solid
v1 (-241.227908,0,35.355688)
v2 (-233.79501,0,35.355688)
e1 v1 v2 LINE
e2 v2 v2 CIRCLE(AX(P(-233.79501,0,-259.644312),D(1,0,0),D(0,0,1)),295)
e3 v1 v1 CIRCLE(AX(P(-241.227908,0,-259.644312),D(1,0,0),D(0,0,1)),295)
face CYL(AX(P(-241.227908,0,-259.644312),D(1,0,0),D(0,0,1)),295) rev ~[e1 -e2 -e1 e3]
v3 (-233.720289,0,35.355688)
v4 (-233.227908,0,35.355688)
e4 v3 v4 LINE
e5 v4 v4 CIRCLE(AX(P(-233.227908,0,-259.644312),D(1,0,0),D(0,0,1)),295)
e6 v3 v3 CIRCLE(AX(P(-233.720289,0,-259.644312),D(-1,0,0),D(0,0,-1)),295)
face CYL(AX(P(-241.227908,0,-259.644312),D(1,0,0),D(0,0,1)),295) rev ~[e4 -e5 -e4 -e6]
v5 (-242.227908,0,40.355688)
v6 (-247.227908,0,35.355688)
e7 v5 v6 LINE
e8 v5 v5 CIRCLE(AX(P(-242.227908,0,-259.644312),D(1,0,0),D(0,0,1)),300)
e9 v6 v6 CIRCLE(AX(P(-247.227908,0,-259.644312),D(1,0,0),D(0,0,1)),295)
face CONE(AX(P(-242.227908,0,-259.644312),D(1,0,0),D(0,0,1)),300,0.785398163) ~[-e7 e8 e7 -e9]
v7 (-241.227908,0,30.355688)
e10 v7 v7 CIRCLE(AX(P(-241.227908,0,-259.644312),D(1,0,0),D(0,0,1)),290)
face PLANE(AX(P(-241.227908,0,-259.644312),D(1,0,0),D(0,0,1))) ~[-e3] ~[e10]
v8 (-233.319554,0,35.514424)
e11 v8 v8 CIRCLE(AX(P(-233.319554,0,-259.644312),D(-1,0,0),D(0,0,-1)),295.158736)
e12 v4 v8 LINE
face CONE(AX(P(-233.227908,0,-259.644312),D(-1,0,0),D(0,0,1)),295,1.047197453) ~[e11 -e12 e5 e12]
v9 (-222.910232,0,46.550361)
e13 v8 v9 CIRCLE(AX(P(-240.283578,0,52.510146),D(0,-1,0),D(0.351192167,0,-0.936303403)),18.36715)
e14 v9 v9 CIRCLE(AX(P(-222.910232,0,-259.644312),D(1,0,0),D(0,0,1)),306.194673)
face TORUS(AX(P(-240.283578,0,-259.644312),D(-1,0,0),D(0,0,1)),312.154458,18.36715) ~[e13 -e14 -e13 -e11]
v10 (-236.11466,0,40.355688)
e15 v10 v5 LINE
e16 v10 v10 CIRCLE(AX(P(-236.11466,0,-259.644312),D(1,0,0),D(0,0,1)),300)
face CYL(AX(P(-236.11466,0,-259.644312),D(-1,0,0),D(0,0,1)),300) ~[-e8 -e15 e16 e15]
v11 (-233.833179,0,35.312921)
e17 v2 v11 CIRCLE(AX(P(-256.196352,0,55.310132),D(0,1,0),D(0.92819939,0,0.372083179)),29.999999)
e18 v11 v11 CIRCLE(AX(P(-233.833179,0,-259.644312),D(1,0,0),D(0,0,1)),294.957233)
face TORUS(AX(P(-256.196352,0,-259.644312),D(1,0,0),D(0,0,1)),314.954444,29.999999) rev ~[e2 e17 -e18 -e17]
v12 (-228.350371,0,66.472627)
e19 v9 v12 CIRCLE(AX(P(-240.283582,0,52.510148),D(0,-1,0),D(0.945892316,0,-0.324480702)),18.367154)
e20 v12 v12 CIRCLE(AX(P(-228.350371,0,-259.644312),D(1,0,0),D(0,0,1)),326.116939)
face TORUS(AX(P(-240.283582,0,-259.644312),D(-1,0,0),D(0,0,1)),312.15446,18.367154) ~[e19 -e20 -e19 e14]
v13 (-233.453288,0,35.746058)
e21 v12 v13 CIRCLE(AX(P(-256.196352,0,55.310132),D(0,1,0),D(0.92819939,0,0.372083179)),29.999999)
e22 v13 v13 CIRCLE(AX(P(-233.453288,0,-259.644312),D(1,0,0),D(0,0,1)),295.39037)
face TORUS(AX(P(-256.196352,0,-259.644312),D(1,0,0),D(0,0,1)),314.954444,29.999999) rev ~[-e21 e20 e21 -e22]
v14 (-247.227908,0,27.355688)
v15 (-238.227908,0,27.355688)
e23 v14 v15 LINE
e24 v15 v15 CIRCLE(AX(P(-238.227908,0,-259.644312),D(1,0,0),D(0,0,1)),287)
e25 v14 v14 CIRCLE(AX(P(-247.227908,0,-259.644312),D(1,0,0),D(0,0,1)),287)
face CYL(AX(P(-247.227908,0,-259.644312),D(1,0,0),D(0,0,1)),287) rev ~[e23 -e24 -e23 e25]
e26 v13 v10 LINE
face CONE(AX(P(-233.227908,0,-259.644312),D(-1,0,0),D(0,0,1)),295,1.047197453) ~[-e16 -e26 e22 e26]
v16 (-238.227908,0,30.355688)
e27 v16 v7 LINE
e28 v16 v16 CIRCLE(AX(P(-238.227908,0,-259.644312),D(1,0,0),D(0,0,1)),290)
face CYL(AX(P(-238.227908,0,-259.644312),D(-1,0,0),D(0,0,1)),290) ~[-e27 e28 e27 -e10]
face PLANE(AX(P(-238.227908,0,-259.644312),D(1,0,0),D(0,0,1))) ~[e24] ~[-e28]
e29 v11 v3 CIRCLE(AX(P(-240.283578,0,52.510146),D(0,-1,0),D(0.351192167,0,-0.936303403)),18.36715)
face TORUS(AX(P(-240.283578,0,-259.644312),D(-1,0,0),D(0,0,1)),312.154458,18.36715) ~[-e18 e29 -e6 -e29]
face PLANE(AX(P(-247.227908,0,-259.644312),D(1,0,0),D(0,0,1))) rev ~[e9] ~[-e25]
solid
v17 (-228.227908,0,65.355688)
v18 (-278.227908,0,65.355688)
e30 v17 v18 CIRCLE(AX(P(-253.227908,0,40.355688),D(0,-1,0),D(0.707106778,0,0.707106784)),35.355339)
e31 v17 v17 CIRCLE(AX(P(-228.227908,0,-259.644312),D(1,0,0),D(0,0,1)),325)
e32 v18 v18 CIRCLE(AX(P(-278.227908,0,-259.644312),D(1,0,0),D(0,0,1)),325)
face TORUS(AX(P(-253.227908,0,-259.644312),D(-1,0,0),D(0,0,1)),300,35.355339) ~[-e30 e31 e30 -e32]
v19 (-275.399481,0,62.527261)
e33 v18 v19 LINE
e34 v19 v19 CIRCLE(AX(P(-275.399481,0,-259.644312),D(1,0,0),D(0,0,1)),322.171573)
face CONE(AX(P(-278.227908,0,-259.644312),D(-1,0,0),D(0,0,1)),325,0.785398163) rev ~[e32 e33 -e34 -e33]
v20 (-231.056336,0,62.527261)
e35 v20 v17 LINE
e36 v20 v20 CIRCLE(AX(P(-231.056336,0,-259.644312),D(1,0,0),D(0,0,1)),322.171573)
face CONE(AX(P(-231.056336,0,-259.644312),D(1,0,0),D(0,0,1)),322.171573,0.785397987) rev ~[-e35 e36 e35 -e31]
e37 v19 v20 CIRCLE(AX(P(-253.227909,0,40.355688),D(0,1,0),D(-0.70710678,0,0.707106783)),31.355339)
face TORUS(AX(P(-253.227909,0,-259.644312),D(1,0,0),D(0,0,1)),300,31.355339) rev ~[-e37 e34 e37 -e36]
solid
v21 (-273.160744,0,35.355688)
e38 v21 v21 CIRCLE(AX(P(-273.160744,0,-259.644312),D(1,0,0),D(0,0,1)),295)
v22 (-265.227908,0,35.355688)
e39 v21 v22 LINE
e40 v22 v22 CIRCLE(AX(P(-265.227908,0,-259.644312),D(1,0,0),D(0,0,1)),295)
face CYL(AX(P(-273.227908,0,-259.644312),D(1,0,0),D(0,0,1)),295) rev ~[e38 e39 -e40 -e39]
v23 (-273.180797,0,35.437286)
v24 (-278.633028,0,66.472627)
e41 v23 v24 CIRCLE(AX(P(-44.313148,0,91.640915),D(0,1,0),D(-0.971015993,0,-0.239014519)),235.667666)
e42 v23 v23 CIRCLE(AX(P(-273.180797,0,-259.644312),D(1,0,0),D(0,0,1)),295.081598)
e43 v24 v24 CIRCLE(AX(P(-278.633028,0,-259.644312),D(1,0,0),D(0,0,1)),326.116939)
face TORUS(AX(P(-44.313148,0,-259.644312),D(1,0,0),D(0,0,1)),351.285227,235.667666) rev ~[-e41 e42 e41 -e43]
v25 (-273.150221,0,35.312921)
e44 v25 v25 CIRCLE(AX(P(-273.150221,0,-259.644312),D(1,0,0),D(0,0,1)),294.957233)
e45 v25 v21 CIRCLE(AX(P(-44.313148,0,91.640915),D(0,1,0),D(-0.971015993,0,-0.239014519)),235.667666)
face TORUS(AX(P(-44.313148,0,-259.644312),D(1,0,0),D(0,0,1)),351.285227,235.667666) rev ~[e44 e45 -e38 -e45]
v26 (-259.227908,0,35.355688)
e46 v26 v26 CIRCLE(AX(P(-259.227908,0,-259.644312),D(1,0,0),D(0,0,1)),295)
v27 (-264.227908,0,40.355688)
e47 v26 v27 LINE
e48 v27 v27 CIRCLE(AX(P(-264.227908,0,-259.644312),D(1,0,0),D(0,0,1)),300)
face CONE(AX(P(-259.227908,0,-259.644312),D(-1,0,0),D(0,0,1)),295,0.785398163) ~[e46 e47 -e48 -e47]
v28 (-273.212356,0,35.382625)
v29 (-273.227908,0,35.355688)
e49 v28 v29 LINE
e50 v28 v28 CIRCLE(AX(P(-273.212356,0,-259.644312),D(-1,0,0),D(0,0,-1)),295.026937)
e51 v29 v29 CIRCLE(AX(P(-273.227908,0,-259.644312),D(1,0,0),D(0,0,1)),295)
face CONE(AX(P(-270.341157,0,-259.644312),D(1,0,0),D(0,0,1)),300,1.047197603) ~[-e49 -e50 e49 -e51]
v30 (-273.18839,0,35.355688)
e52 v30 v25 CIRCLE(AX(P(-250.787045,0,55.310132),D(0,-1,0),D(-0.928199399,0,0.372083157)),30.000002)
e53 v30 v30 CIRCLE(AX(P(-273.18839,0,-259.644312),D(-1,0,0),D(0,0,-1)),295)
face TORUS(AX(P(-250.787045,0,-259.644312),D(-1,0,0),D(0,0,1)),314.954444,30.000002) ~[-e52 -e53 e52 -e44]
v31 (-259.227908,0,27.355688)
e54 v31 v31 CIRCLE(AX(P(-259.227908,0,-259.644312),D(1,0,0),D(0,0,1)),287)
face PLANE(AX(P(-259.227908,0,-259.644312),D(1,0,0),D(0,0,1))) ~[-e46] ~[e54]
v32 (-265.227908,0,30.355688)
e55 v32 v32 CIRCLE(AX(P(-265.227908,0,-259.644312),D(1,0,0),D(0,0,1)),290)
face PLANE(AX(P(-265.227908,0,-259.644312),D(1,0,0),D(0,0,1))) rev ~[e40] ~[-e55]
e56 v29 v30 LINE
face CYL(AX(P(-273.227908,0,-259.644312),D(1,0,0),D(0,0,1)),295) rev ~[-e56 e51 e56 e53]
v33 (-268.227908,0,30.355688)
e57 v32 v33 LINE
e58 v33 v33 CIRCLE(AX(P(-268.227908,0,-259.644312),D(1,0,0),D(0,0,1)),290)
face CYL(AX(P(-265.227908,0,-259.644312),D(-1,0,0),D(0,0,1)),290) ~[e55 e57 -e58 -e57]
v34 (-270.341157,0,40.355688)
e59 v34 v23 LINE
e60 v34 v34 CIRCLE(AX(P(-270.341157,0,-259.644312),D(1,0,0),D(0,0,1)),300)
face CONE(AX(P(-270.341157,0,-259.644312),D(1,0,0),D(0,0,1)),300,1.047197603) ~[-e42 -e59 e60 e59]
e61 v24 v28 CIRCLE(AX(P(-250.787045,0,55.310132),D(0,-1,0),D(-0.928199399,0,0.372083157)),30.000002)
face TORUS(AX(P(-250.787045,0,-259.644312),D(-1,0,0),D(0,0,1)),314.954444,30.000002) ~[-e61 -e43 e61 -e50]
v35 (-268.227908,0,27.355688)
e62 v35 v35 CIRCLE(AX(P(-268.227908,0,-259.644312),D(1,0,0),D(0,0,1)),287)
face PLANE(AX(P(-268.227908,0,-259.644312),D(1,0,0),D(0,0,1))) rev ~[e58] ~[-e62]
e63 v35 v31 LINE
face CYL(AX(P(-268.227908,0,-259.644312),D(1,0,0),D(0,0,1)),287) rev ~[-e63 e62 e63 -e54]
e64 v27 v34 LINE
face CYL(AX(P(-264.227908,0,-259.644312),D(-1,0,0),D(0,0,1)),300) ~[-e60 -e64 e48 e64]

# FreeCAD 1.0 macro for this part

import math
import FreeCAD as App
import Part
import Sketcher
Q = App.Units.Quantity


def add_polygon(sketch, points):
    """Adds a closed chain of lines whose ends are joined by coincident constraints."""
    first, n = sketch.GeometryCount, len(points)
    for a, b in zip(points, points[1:] + points[:1]):
        sketch.addGeometry(Part.LineSegment(App.Vector(*a, 0), App.Vector(*b, 0)), False)
    for i in range(n):
        sketch.addConstraint(Sketcher.Constraint("Coincident", first + i, 2, first + (i + 1) % n, 1))

doc = App.newDocument("Part")
body = doc.addObject("PartDesign::Body", "Body")
body.AllowCompound = True

sketch1 = body.newObject("Sketcher::SketchObject", "Sketch")
sketch1.AttachmentSupport = (doc.getObject("XZ_Plane"), [""])
sketch1.MapMode = "FlatFace"
sketch1.addGeometry(Part.LineSegment(App.Vector(-231.1, 62.5, 0), App.Vector(-228.2, 65.4, 0)), False)
sketch1.addGeometry(Part.ArcOfCircle(Part.Circle(App.Vector(-253.2, 40.4, 0), App.Vector(0, 0, 1), 35.4), math.radians(45), math.radians(135)), False)
sketch1.addGeometry(Part.LineSegment(App.Vector(-278.2, 65.4, 0), App.Vector(-275.4, 62.5, 0)), False)
sketch1.addGeometry(Part.ArcOfCircle(Part.Circle(App.Vector(-253.2, 40.4, 0), App.Vector(0, 0, 1), 31.4), math.radians(45), math.radians(135)), False)
add_polygon(sketch1, [(-241.2, 35.4), (-233.2, 35.4), (-236.1, 40.4), (-242.2, 40.4), (-247.2, 35.4), (-247.2, 27.4), (-238.2, 27.4), (-238.2, 30.4), (-241.2, 30.4)])
add_polygon(sketch1, [(-264.2, 40.4), (-270.3, 40.4), (-273.2, 35.4), (-265.2, 35.4), (-265.2, 30.4), (-268.2, 30.4), (-268.2, 27.4), (-259.2, 27.4), (-259.2, 35.4)])
sketch1.addGeometry(Part.LineSegment(App.Vector(-278.2, -259.6, 0), App.Vector(-228.2, -259.6, 0)), True)
sketch1.addConstraint([
    Sketcher.Constraint("Coincident", 0, 2, 1, 1),
    Sketcher.Constraint("Coincident", 1, 2, 2, 1),
    Sketcher.Constraint("Coincident", 2, 2, 3, 2),
    Sketcher.Constraint("Coincident", 3, 1, 0, 1),
    Sketcher.Constraint("Horizontal", 4),
    Sketcher.Constraint("Horizontal", 6),
    Sketcher.Constraint("Vertical", 8),
    Sketcher.Constraint("Horizontal", 9),
    Sketcher.Constraint("Vertical", 10),
    Sketcher.Constraint("Horizontal", 11),
    Sketcher.Constraint("Vertical", 12),
    Sketcher.Constraint("Horizontal", 13),
    Sketcher.Constraint("Horizontal", 15),
    Sketcher.Constraint("Vertical", 16),
    Sketcher.Constraint("Horizontal", 17),
    Sketcher.Constraint("Vertical", 18),
    Sketcher.Constraint("Horizontal", 19),
    Sketcher.Constraint("Vertical", 20),
    Sketcher.Constraint("Horizontal", 22),
    Sketcher.Constraint("Coincident", 3, 3, 1, 3),
    Sketcher.Constraint("Perpendicular", 0, 2),
    Sketcher.Constraint("Perpendicular", 2, 7),
    Sketcher.Constraint("Perpendicular", 7, 21),
    Sketcher.Constraint("Horizontal", 0, 2, 1, 2),
    Sketcher.Constraint("Horizontal", 2, 2, 3, 1),
    Sketcher.Constraint("Horizontal", 3, 3, 5, 2),
    Sketcher.Constraint("Horizontal", 4, 2, 7, 2),
    Sketcher.Constraint("Horizontal", 6, 2, 13, 2),
    Sketcher.Constraint("Horizontal", 12, 2, 14, 2),
    Sketcher.Constraint("Horizontal", 11, 2, 16, 2),
    Sketcher.Constraint("Horizontal", 9, 2, 18, 2),
    Sketcher.Constraint("Horizontal", 15, 2, 20, 2),
    Sketcher.Constraint("Vertical", 1, 2, 22, 1),
    Sketcher.Constraint("Vertical", 0, 2, 22, 2),
    Sketcher.Constraint("Equal", 6, 13),
    Sketcher.Constraint("Equal", 4, 15),
    Sketcher.Constraint("Equal", 11, 17),
    Sketcher.Constraint("Equal", 9, 19),
    Sketcher.Constraint("Equal", 15, 8),
    Sketcher.Constraint("Equal", 17, 10),
    Sketcher.Constraint("DistanceX", 4, 1, 4, 2, Q("8 mm")),
    Sketcher.Constraint("DistanceX", 9, 1, 9, 2, Q("9 mm")),
    Sketcher.Constraint("DistanceX", 11, 2, 11, 1, Q("3 mm")),
    Sketcher.Constraint("DistanceX", 22, 1, 22, 2, Q("50 mm")),
    Sketcher.Constraint("Angle", 5, Q("120.000006 deg")),
    Sketcher.Constraint("Distance", 0, Q("4.000001 mm")),
    Sketcher.Constraint("DistanceY", 3, 3, 0, 2, Q("25 mm")),
    Sketcher.Constraint("DistanceX", 1, 3, 4, 2, Q("20 mm")),
    Sketcher.Constraint("DistanceY", 4, 2, 1, 3, Q("5 mm")),
    Sketcher.Constraint("DistanceX", 14, 2, 3, 3, Q("20 mm")),
    Sketcher.Constraint("DistanceY", 22, 1, 18, 2, Q("287 mm")),
    Sketcher.Constraint("DistanceX", 1, 3, -1, 1, Q("253.227908 mm")),
    Sketcher.Constraint("DistanceY", -1, 1, 3, 3, Q("40.355688 mm")),
])
revolution = body.newObject("PartDesign::Revolution", "Revolution")
revolution.Profile = sketch1
revolution.ReferenceAxis = (sketch1, ["Axis0"])
revolution.Angle = 360

sketch2 = body.newObject("Sketcher::SketchObject", "Sketch001")
sketch2.AttachmentSupport = (doc.getObject("XZ_Plane"), [""])
sketch2.MapMode = "FlatFace"
sketch2.addGeometry([
    Part.ArcOfCircle(Part.Circle(App.Vector(-44, 92, 0), App.Vector(0, 0, 1), 236), math.radians(-173.87), math.radians(-166.17)),
    Part.ArcOfCircle(Part.Circle(App.Vector(-251, 55, 0), App.Vector(0, 0, 1), 30), math.radians(158), math.radians(222)),
    Part.ArcOfCircle(Part.Circle(App.Vector(-256, 55, 0), App.Vector(0, 0, 1), 30), math.radians(-42), math.radians(22)),
    Part.ArcOfCircle(Part.Circle(App.Vector(-240, 53, 0), App.Vector(0, 0, 1), 18), math.radians(-69), math.radians(-19)),
    Part.ArcOfCircle(Part.Circle(App.Vector(-240, 53, 0), App.Vector(0, 0, 1), 18), math.radians(-19), math.radians(49)),
], False)
sketch2.addGeometry(Part.LineSegment(App.Vector(-279, -260, 0), App.Vector(-44, -260, 0)), True)
sketch2.addConstraint([
    Sketcher.Constraint("Coincident", 0, 1, 1, 1),
    Sketcher.Constraint("Coincident", 1, 2, 0, 2),
    Sketcher.Constraint("Coincident", 2, 1, 3, 1),
    Sketcher.Constraint("Tangent", 3, 2, 4, 1),
    Sketcher.Constraint("Coincident", 4, 2, 2, 2),
    Sketcher.Constraint("Horizontal", 5),
    Sketcher.Constraint("Horizontal", 1, 3, 2, 3),
    Sketcher.Constraint("Horizontal", 1, 2, 2, 1),
    Sketcher.Constraint("Horizontal", 0, 1, 4, 2),
    Sketcher.Constraint("Vertical", 0, 1, 5, 1),
    Sketcher.Constraint("Vertical", 0, 3, 5, 2),
    Sketcher.Constraint("Radius", 1, Q("30.000002 mm")),
    Sketcher.Constraint("Radius", 2, Q("29.999999 mm")),
    Sketcher.Constraint("Radius", 3, Q("18.36715 mm")),
    Sketcher.Constraint("Radius", 0, Q("235.667666 mm")),
    Sketcher.Constraint("Radius", 4, Q("18.367154 mm")),
    Sketcher.Constraint("DistanceX", 5, 1, 5, 2, Q("234.31988 mm")),
    Sketcher.Constraint("DistanceX", 3, 3, 2, 1, Q("6.450399 mm")),
    Sketcher.Constraint("DistanceX", 0, 3, -1, 1, Q("44.313148 mm")),
    Sketcher.Constraint("DistanceY", -1, 1, 1, 3, Q("55.310132 mm")),
    Sketcher.Constraint("DistanceX", 2, 3, -1, 1, Q("256.196352 mm")),
    Sketcher.Constraint("DistanceY", -1, 1, 3, 2, Q("46.550361 mm")),
    Sketcher.Constraint("DistanceY", 5, 1, -1, 1, Q("259.644312 mm")),
])
revolution2 = body.newObject("PartDesign::Revolution", "Revolution001")
revolution2.Profile = sketch2
revolution2.ReferenceAxis = (sketch2, ["Axis0"])
revolution2.Angle = 360

doc.recompute()
